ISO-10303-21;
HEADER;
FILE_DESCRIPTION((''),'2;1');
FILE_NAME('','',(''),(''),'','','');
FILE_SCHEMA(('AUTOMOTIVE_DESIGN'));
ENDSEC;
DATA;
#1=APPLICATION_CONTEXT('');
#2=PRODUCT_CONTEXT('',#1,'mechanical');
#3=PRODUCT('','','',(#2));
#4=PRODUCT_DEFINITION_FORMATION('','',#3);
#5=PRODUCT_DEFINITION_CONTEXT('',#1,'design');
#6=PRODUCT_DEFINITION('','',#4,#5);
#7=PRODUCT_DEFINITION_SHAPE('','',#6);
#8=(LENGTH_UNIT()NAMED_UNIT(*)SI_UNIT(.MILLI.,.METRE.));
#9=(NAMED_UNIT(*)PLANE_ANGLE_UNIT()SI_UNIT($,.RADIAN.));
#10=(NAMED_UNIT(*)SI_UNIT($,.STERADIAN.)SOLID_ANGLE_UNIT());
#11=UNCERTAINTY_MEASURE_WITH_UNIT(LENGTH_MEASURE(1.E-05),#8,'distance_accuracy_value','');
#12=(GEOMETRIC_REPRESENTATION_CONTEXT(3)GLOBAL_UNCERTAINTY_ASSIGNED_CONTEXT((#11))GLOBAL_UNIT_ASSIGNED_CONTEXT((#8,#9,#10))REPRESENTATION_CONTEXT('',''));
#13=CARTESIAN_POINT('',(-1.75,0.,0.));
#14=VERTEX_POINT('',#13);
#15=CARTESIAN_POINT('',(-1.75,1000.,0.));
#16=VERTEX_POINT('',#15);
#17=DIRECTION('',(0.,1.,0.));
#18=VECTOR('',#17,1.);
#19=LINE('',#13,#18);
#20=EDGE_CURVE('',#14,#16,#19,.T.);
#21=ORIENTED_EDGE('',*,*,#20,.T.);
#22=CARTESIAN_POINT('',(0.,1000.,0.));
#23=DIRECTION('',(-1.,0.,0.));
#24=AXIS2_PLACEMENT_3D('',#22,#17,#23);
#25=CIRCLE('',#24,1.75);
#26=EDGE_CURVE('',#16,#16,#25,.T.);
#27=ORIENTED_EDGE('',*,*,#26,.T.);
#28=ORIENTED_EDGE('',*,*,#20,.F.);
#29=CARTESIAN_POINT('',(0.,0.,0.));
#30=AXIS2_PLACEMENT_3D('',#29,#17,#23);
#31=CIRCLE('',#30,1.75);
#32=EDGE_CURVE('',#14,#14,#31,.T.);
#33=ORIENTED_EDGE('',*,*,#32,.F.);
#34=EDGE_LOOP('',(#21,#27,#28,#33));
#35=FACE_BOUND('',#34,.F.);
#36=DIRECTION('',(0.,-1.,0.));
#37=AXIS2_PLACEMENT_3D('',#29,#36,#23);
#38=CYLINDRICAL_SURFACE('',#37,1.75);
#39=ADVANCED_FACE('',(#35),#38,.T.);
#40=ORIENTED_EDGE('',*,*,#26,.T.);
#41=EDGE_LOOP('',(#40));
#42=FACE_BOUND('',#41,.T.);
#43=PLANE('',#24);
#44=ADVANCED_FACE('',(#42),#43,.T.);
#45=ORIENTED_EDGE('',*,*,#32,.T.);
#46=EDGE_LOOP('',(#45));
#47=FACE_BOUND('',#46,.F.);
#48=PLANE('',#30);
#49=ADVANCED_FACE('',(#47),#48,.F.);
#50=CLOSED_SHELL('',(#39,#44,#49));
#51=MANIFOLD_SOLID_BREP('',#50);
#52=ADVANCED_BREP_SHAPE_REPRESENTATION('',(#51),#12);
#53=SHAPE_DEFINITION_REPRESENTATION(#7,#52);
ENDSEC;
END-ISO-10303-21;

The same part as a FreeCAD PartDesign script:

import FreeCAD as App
import Part
import Sketcher

V = App.Vector
Q = App.Units.Quantity

doc = App.newDocument("Part")
params = doc.addObject("Spreadsheet::Sheet", "Params")
for row, (alias, value) in enumerate([
    ("sketch1_diameter", "3.5 mm"),
    ("pad1_length", "1000 mm"),
], start=1):
    params.set(f"A{row}", alias)
    params.set(f"B{row}", "=" + value)
    params.setAlias(f"B{row}", alias)

body = doc.addObject("PartDesign::Body", "Body")

# Sketch on XZ plane
sketch1 = body.newObject("Sketcher::SketchObject", "Sketch")
sketch1.AttachmentSupport = (doc.getObject("XZ_Plane"), [""])
sketch1.MapMode = "FlatFace"
sketch1.addGeometry(Part.Circle(V(0, 0, 0), V(0, 0, 1), 1.8), False)
sketch1.addConstraint([
    Sketcher.Constraint("Coincident", 0, 3, -1, 1),
    Sketcher.Constraint("Diameter", 0, Q("3.5 mm")),
])
sketch1.setExpression("Constraints[1]", "Params.sketch1_diameter")
pad1 = body.newObject("PartDesign::Pad", "Pad")
pad1.Profile = sketch1
pad1.setExpression("Length", "Params.pad1_length")
pad1.Reversed = True

doc.recompute()
